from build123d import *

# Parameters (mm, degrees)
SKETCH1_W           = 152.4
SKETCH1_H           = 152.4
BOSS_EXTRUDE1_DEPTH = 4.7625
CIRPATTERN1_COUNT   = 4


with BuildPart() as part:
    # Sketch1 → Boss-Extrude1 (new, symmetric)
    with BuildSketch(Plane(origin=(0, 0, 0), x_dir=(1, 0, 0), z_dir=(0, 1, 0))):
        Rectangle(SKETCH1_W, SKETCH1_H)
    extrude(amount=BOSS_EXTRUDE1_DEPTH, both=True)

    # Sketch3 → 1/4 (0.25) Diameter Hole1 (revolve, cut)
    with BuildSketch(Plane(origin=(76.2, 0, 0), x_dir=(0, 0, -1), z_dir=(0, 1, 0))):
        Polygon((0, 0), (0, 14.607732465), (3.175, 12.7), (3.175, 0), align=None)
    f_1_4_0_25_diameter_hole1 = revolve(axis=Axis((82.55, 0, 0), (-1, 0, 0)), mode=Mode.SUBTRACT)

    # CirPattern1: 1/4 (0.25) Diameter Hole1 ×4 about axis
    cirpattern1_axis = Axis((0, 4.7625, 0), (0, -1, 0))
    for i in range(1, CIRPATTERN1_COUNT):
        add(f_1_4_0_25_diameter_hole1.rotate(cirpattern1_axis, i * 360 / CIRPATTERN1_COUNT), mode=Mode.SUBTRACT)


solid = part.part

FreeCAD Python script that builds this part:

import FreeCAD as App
import Part
import Sketcher

V = App.Vector
Q = App.Units.Quantity


def add_polygon(sketch, points):
    """Adds a closed chain of lines whose ends are joined by coincident constraints."""
    first, n = sketch.GeometryCount, len(points)
    for a, b in zip(points, points[1:] + points[:1]):
        sketch.addGeometry(Part.LineSegment(App.Vector(*a, 0), App.Vector(*b, 0)), False)
    for i in range(n):
        sketch.addConstraint(Sketcher.Constraint("Coincident", first + i, 2, first + (i + 1) % n, 1))

doc = App.newDocument("Part")
body = doc.addObject("PartDesign::Body", "Body")

# Sketch on XZ plane
sketch1 = doc.addObject("Sketcher::SketchObject", "Sketch")
body.addObject(sketch1)
sketch1.AttachmentSupport = (doc.XZ_Plane, [""])
sketch1.MapMode = "FlatFace"
add_polygon(sketch1, [(-76, -76), (-76, 76), (76, 76), (76, -76)])  # lines 0-3
sketch1.addConstraint([
    Sketcher.Constraint("Vertical", 0),
    Sketcher.Constraint("Horizontal", 1),
    Sketcher.Constraint("Vertical", 2),
    Sketcher.Constraint("Horizontal", 3),
    Sketcher.Constraint("Symmetric", 0, 2, 2, 2, -1, 1),
    Sketcher.Constraint("Equal", 3, 0),
    Sketcher.Constraint("DistanceX", 1, 1, 1, 2, Q("6 in")),
])
pad1 = doc.addObject("PartDesign::Pad", "Pad")
body.addObject(pad1)
pad1.Profile = sketch1
pad1.Length = Q("0.375 in")
pad1.Midplane = True

# Sketch on XZ plane
sketch2 = doc.addObject("Sketcher::SketchObject", "Sketch001")
body.addObject(sketch2)
sketch2.AttachmentSupport = (doc.XZ_Plane, [""])
sketch2.MapMode = "FlatFace"
add_polygon(sketch2, [(61.6, 0), (76.2, 0), (76.2, -3.2), (63.5, -3.2)])  # lines 0-3
sketch2.addConstraint([
    Sketcher.Constraint("Horizontal", 0),
    Sketcher.Constraint("Vertical", 1),
    Sketcher.Constraint("Horizontal", 2),
    Sketcher.Constraint("PointOnObject", 0, 2, -1),
    Sketcher.Constraint("DistanceX", 2, 2, 2, 1, Q("0.5 in")),
    Sketcher.Constraint("DistanceX", -1, 1, 0, 2, Q("3 in")),
    Sketcher.Constraint("Angle", 3, Q("121 deg")),
    Sketcher.Constraint("DistanceY", 1, 2, 1, 1, Q("0.125 in")),
])
groove = doc.addObject("PartDesign::Groove", "Groove")
body.addObject(groove)
groove.Profile = sketch2
groove.ReferenceAxis = (sketch2, ["H_Axis"])
groove.Angle = 360
doc.recompute()

polarpattern = doc.addObject("PartDesign::PolarPattern", "PolarPattern")
body.addObject(polarpattern)
polarpattern.Originals = [groove]
polarpattern.Axis = (doc.Y_Axis, [""])
polarpattern.Angle = 360
polarpattern.Occurrences = 4
body.Tip = polarpattern

doc.recompute()
